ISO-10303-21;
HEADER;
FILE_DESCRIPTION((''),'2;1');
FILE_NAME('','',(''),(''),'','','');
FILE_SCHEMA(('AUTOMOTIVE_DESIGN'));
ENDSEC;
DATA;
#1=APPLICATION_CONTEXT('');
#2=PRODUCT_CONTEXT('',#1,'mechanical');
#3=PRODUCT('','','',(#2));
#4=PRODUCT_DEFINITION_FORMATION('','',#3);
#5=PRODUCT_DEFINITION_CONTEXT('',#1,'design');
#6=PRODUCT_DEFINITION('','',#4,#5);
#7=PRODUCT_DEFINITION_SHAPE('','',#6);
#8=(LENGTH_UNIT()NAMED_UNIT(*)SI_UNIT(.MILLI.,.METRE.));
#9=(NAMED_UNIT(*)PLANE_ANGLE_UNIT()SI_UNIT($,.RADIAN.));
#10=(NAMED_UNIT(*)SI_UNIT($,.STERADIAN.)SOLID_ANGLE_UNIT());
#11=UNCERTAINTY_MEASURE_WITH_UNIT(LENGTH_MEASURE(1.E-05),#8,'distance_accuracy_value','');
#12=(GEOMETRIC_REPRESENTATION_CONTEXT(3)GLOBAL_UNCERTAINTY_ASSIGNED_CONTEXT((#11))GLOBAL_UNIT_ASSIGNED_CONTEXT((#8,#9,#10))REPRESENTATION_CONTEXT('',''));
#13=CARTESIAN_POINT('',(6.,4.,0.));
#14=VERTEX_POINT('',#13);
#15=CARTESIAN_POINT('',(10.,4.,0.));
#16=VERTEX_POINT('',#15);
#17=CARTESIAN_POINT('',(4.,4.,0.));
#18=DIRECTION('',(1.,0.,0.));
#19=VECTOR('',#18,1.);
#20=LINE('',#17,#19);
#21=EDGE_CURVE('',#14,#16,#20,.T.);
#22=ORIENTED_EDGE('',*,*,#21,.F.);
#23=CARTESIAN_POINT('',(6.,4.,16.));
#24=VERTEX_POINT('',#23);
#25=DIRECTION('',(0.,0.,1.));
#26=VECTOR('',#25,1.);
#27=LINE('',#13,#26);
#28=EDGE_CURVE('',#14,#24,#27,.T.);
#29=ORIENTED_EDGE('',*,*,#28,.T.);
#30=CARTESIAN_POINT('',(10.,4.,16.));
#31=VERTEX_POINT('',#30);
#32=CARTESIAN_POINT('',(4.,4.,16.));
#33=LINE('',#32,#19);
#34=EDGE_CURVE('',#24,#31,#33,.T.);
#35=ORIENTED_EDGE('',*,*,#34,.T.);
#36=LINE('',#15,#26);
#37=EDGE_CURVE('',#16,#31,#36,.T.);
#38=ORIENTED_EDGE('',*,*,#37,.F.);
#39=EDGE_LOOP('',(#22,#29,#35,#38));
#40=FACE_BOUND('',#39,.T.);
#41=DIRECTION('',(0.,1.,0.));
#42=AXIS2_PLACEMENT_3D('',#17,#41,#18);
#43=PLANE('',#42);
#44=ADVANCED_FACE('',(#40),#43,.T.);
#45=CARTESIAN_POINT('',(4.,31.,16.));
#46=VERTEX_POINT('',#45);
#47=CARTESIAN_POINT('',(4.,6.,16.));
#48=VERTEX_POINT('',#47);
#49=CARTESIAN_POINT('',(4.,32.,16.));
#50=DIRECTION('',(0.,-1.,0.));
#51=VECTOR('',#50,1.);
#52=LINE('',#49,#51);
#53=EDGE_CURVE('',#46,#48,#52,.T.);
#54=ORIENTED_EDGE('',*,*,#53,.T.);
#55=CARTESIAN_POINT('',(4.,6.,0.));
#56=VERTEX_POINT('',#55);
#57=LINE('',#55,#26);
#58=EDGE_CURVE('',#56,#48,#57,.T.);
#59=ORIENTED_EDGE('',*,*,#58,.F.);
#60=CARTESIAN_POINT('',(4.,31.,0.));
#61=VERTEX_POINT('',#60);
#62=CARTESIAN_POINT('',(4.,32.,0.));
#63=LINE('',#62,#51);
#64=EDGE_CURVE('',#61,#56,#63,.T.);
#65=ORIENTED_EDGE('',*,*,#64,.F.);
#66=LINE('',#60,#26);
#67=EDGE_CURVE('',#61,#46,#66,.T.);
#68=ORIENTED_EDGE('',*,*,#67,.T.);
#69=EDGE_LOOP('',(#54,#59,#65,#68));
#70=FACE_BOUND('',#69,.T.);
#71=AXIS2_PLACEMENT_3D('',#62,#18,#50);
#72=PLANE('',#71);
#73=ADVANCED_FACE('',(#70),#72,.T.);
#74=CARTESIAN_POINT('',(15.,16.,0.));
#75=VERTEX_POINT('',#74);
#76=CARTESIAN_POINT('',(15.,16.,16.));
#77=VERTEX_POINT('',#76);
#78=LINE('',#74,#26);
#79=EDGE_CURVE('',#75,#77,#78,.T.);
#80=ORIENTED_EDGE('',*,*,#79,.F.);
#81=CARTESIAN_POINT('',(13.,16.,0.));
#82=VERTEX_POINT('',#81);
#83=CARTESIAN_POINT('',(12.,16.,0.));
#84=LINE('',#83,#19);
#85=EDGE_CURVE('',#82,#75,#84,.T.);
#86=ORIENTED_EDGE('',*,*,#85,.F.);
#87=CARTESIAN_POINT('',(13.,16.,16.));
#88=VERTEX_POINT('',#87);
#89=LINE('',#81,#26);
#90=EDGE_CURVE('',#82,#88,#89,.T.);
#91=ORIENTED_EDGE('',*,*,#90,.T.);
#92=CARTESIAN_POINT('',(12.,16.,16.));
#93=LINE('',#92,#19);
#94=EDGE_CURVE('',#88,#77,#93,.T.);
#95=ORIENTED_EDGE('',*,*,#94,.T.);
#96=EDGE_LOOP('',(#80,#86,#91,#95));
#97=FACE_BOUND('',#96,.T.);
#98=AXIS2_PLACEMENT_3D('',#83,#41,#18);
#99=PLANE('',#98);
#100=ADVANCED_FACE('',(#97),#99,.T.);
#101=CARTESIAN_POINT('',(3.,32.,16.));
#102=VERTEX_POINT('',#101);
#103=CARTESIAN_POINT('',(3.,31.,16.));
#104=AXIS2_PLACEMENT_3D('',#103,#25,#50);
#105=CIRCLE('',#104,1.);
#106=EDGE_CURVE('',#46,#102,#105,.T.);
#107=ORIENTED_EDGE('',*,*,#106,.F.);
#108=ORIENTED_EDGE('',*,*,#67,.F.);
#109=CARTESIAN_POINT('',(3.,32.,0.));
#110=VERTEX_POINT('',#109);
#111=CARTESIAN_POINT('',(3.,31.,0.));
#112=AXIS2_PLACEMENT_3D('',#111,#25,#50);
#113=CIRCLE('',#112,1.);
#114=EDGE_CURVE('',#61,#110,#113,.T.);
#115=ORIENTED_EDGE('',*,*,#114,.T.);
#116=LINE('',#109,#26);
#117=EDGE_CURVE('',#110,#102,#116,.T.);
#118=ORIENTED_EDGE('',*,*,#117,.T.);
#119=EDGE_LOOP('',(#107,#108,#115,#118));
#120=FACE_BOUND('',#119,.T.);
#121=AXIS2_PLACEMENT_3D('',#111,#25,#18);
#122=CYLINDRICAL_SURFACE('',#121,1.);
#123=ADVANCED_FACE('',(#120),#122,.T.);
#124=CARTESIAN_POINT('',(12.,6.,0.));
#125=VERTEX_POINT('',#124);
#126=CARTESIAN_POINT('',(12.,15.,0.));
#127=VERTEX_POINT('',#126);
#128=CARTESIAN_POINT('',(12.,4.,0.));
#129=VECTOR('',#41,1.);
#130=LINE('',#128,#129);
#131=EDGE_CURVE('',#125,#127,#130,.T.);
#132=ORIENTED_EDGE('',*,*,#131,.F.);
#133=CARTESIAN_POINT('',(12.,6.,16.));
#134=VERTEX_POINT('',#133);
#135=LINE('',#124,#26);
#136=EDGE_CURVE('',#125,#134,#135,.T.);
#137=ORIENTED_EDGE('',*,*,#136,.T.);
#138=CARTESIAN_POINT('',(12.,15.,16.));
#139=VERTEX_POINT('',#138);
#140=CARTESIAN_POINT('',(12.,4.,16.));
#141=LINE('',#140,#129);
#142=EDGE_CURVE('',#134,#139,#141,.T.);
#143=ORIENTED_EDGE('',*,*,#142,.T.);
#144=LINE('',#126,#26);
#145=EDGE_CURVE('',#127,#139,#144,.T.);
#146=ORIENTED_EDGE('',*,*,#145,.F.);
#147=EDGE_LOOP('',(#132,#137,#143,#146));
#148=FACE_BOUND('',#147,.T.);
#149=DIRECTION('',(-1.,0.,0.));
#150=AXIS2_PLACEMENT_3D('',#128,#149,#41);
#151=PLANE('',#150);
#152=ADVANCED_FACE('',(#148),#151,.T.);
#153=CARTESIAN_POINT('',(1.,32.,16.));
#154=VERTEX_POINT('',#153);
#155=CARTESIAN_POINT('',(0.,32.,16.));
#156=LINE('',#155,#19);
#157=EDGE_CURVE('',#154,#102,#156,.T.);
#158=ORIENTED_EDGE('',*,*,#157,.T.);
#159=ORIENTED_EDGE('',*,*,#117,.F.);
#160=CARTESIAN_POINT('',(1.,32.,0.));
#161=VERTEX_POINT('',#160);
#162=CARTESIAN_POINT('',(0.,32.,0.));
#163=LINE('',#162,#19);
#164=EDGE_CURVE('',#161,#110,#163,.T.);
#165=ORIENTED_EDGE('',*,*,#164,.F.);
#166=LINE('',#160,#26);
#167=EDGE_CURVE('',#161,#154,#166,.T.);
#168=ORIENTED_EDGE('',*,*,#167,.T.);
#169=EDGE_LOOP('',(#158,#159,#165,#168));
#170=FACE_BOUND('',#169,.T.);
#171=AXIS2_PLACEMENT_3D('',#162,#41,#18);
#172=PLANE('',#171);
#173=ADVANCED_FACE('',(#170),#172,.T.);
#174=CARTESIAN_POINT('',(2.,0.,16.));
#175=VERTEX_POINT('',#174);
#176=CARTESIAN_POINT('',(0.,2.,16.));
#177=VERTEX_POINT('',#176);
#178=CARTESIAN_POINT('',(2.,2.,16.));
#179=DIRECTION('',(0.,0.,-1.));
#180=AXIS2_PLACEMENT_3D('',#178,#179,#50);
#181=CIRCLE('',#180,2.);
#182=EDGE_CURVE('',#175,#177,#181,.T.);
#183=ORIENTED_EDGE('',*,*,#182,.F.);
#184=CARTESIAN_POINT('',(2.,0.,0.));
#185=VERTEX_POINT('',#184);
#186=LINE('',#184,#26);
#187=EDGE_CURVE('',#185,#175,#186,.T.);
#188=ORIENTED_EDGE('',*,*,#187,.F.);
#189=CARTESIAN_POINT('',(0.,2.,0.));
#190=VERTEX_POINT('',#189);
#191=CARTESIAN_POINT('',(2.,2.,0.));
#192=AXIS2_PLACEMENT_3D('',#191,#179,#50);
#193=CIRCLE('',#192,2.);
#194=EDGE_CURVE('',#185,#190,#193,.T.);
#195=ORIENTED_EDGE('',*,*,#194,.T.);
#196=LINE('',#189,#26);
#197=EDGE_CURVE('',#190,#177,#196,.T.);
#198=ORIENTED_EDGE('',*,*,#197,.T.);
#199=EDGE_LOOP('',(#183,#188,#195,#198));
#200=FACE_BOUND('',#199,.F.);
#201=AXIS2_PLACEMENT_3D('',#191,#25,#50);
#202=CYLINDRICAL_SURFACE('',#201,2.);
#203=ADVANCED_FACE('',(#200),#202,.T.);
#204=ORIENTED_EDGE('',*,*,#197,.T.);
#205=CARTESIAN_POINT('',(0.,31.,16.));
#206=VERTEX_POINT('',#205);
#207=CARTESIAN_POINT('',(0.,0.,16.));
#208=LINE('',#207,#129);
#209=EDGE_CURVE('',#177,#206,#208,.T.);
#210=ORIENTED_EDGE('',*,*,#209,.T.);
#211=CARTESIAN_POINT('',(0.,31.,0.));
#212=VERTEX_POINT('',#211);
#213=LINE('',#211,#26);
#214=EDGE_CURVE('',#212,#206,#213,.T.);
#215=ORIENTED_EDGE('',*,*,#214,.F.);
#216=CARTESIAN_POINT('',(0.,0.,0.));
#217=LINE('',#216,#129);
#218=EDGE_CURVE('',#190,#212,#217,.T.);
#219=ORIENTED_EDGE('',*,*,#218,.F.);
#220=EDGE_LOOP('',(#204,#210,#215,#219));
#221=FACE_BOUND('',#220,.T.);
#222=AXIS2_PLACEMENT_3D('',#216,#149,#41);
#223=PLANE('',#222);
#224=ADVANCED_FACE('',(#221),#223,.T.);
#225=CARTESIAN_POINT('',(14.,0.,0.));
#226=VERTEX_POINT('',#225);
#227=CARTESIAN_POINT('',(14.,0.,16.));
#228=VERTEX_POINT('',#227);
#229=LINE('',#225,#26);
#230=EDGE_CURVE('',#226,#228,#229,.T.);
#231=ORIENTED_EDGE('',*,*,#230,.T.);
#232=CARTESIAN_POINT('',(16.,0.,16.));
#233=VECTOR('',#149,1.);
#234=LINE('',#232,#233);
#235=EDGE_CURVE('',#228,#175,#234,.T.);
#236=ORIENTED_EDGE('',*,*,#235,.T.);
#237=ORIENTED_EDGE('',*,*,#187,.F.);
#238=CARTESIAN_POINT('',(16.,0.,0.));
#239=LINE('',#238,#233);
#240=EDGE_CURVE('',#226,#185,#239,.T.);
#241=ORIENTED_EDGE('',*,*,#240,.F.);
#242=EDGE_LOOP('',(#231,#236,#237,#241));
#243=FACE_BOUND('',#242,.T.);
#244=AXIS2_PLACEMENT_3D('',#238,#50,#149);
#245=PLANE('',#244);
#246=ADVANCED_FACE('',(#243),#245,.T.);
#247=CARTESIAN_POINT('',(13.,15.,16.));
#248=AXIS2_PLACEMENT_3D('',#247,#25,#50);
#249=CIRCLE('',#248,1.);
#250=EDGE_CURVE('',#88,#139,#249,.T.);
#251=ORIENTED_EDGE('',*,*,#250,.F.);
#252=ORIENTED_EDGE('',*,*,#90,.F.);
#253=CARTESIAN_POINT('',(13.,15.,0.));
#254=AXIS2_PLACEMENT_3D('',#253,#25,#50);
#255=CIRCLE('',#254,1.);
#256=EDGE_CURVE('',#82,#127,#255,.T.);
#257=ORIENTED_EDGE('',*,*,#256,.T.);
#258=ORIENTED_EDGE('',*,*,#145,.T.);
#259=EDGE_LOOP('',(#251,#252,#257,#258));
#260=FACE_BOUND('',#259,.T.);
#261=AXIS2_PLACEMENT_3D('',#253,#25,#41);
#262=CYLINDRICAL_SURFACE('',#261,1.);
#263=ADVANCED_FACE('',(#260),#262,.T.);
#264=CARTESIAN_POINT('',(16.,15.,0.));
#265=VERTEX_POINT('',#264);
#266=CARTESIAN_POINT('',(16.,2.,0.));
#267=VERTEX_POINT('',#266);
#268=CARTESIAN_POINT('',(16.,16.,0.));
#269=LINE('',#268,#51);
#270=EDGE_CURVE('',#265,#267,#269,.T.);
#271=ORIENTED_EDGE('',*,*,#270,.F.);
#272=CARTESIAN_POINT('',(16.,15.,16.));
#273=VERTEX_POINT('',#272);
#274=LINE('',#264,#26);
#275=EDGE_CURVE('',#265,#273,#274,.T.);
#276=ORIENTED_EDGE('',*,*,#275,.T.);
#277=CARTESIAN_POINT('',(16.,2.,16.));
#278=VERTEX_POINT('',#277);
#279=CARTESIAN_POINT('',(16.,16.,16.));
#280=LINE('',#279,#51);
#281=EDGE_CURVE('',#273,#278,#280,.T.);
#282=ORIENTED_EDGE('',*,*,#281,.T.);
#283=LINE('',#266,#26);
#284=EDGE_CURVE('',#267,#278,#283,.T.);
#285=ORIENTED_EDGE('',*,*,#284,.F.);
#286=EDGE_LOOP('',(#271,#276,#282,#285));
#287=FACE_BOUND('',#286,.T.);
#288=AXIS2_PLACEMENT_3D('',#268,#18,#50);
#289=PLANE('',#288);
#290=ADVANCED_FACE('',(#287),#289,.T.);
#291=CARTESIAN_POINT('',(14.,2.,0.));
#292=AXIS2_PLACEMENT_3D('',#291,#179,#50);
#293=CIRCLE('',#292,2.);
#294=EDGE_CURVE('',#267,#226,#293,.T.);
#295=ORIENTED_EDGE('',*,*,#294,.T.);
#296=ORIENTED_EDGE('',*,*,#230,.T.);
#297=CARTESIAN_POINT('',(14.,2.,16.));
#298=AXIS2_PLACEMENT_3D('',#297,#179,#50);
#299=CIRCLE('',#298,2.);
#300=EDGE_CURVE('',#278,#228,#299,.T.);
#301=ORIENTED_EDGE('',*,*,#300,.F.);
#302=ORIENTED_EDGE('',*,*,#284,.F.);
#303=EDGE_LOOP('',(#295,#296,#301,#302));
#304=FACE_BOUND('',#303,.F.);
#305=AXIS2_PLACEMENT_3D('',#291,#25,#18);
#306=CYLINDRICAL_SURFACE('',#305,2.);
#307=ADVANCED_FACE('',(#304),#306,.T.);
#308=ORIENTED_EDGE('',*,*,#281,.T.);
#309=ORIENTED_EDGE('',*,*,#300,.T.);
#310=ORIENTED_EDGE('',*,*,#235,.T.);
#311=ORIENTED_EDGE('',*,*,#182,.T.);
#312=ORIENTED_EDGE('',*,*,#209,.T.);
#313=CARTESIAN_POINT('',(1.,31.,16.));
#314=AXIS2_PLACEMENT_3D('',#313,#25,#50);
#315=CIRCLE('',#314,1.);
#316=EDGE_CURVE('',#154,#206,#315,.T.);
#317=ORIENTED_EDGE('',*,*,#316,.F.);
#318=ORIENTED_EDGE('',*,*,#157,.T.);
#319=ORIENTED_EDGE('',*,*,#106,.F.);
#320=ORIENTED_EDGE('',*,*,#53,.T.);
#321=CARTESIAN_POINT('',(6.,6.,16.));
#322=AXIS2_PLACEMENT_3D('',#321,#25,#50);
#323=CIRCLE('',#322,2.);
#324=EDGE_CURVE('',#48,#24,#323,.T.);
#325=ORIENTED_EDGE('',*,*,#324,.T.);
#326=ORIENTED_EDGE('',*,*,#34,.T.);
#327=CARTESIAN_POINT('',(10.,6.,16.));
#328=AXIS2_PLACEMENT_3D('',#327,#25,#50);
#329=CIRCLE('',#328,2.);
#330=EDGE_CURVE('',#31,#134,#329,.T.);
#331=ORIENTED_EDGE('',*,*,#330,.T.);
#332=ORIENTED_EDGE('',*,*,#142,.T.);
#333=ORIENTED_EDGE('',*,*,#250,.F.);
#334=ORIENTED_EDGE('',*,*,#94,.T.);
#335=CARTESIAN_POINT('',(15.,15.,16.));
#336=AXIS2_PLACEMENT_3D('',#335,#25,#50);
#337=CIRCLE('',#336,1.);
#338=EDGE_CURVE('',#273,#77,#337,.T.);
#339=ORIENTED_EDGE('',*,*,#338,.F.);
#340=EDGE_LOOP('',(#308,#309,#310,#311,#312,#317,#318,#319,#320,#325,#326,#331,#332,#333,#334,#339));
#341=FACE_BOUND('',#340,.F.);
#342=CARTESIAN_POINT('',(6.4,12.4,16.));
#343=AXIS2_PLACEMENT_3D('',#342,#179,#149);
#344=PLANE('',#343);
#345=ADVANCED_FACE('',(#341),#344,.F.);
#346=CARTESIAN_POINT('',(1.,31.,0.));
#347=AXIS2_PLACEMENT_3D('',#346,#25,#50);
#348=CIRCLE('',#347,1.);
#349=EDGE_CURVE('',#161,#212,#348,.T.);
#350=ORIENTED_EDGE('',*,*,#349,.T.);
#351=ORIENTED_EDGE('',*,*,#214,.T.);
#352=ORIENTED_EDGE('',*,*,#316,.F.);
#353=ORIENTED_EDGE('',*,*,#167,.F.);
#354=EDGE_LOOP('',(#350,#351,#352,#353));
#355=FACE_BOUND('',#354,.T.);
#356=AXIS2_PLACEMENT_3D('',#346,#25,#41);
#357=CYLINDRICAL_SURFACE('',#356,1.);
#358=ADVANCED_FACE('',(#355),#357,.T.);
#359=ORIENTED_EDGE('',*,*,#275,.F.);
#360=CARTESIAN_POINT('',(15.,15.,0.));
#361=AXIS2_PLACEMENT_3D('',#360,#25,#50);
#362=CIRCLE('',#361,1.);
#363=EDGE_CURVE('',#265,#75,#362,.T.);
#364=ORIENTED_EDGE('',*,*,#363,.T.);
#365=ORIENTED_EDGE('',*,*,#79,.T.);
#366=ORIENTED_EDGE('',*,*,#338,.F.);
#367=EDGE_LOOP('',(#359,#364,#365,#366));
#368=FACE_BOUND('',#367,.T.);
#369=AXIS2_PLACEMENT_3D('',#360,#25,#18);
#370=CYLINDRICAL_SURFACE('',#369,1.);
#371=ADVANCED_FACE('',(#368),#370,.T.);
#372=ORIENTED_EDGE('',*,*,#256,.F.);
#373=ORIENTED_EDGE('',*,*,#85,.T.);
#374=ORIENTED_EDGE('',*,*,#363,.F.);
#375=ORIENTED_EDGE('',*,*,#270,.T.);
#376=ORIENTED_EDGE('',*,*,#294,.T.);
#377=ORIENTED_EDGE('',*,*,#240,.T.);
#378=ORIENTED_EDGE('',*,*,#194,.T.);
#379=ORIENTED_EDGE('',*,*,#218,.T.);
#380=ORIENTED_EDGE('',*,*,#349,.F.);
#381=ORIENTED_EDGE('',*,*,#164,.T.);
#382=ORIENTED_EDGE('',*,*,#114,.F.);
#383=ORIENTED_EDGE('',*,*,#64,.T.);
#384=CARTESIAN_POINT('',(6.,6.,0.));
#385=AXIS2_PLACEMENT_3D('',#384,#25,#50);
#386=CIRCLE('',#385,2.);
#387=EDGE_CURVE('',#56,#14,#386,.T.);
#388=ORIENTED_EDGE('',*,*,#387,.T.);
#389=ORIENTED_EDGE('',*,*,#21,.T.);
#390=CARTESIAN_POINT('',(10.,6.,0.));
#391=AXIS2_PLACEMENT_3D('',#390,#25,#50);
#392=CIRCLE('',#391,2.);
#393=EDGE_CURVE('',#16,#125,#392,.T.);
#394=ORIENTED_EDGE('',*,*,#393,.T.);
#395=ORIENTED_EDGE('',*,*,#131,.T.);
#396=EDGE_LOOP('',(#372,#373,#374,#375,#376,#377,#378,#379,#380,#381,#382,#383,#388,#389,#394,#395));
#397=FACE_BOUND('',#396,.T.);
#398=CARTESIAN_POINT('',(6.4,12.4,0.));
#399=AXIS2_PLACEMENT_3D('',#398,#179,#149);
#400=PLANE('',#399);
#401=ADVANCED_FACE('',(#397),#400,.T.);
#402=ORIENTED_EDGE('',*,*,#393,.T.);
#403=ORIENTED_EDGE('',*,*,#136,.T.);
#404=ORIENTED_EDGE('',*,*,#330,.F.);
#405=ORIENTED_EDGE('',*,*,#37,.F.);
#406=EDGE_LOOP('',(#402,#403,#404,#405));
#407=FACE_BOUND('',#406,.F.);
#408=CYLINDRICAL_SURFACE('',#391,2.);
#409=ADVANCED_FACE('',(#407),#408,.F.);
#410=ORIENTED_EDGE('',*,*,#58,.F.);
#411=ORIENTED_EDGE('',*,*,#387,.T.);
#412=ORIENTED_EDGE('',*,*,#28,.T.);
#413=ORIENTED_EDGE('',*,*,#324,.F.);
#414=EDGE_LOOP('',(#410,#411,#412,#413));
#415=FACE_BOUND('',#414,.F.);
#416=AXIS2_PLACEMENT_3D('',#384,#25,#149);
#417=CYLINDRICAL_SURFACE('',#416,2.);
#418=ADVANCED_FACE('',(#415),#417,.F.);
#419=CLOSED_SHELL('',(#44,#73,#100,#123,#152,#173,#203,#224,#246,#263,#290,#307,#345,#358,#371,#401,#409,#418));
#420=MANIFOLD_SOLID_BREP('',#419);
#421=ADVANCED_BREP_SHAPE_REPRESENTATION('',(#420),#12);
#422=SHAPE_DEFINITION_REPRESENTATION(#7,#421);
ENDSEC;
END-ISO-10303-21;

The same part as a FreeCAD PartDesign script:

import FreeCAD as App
import Part
import Sketcher
from FreeCAD import Vector


def edges_at(feature, points):
    """Names of the edges that pass closest to the given points."""
    edges = feature.Shape.Edges
    near = lambda p: min(range(len(edges)), key=lambda i: edges[i].distToShape(Part.Vertex(*p))[0])
    return sorted({f"Edge{near(p) + 1}" for p in points})


def add_polygon(sketch, points):
    """Adds a closed chain of lines whose ends are joined by coincident constraints."""
    first, n = sketch.GeometryCount, len(points)
    for a, b in zip(points, points[1:] + points[:1]):
        sketch.addGeometry(Part.LineSegment(App.Vector(*a, 0), App.Vector(*b, 0)), False)
    for i in range(n):
        sketch.addConstraint(Sketcher.Constraint("Coincident", first + i, 2, first + (i + 1) % n, 1))

doc = App.newDocument("Part")
body = doc.addObject("PartDesign::Body", "Body")

# Sketch on XY plane
sketch1 = body.newObject("Sketcher::SketchObject", "Sketch")
sketch1.AttachmentSupport = (doc.getObject("XY_Plane"), [""])
sketch1.MapMode = "FlatFace"
add_polygon(sketch1, [(0, 32), (0, 0), (16, 0), (16, 16), (12, 16), (12, 4), (4, 4), (4, 32)])  # lines 0-7
sketch1.addConstraint(Sketcher.Constraint("Vertical", 0))
sketch1.addConstraint(Sketcher.Constraint("Horizontal", 1))
sketch1.addConstraint(Sketcher.Constraint("Vertical", 2))
sketch1.addConstraint(Sketcher.Constraint("Horizontal", 3))
sketch1.addConstraint(Sketcher.Constraint("Vertical", 4))
sketch1.addConstraint(Sketcher.Constraint("Horizontal", 5))
sketch1.addConstraint(Sketcher.Constraint("Vertical", 6))
sketch1.addConstraint(Sketcher.Constraint("Horizontal", 7))
sketch1.addConstraint(Sketcher.Constraint("Coincident", 0, 2, -1, 1))
sketch1.addConstraint(Sketcher.Constraint("Equal", 3, 7))
sketch1.addConstraint(Sketcher.Constraint("Equal", 1, 2))
sketch1.addConstraint(Sketcher.Constraint("DistanceX", 1, 1, 1, 2, 16.0))
sketch1.addConstraint(Sketcher.Constraint("DistanceX", 3, 2, 3, 1, 4.0))
sketch1.addConstraint(Sketcher.Constraint("DistanceY", 0, 2, 0, 1, 32.0))
sketch1.addConstraint(Sketcher.Constraint("DistanceY", 4, 2, 4, 1, 12.0))
pad1 = body.newObject("PartDesign::Pad", "Pad")
pad1.Profile = sketch1
pad1.Length = 16
doc.recompute()

fillet = body.newObject("PartDesign::Fillet", "Fillet")
fillet.Base = (pad1, edges_at(pad1, [(4, 4, 8)]))
fillet.Radius = 2
doc.recompute()

fillet2 = body.newObject("PartDesign::Fillet", "Fillet001")
fillet2.Base = (fillet, edges_at(fillet, [(12, 4, 8)]))
fillet2.Radius = 2
doc.recompute()

fillet3 = body.newObject("PartDesign::Fillet", "Fillet002")
fillet3.Base = (fillet2, edges_at(fillet2, [(16, 0, 8)]))
fillet3.Radius = 2
doc.recompute()

fillet4 = body.newObject("PartDesign::Fillet", "Fillet003")
fillet4.Base = (fillet3, edges_at(fillet3, [(0, 0, 8)]))
fillet4.Radius = 2
doc.recompute()

fillet5 = body.newObject("PartDesign::Fillet", "Fillet004")
fillet5.Base = (fillet4, edges_at(fillet4, [(16, 16, 8)]))
fillet5.Radius = 1
doc.recompute()

fillet6 = body.newObject("PartDesign::Fillet", "Fillet005")
fillet6.Base = (fillet5, edges_at(fillet5, [(12, 16, 8)]))
fillet6.Radius = 1
doc.recompute()

fillet7 = body.newObject("PartDesign::Fillet", "Fillet006")
fillet7.Base = (fillet6, edges_at(fillet6, [(4, 32, 8)]))
fillet7.Radius = 1
doc.recompute()

fillet8 = body.newObject("PartDesign::Fillet", "Fillet007")
fillet8.Base = (fillet7, edges_at(fillet7, [(0, 32, 8)]))
fillet8.Radius = 1

doc.recompute()
